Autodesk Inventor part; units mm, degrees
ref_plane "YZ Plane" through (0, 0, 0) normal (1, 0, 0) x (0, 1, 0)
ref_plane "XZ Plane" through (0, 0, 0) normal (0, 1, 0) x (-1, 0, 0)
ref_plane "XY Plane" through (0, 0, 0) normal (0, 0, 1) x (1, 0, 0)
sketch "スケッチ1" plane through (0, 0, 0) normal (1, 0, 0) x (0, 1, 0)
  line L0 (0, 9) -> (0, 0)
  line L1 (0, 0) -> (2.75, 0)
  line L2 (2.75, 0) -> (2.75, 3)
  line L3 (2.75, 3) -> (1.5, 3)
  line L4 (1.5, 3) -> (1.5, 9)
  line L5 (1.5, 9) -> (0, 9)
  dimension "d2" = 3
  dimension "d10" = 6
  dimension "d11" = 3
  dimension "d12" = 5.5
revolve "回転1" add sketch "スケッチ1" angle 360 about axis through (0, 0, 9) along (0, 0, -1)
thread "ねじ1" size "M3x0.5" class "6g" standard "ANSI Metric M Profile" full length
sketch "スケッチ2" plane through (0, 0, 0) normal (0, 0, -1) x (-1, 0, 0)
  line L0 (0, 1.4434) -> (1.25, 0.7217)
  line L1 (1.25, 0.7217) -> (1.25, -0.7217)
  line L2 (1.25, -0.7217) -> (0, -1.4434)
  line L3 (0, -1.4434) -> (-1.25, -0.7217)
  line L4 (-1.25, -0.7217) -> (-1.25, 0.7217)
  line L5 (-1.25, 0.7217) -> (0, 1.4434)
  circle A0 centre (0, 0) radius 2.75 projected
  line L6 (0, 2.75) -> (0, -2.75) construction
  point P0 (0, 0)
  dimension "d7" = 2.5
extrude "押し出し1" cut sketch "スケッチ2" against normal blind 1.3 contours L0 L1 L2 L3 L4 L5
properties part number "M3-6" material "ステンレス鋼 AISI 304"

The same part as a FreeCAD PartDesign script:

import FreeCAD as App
import Part
import Sketcher
from FreeCAD import Vector
Q = App.Units.Quantity

doc = App.newDocument("Part")
body = doc.addObject("PartDesign::Body", "Body")

# Sketch on YZ plane
sketch1 = doc.addObject("Sketcher::SketchObject", "Sketch")
body.addObject(sketch1)
sketch1.AttachmentSupport = (doc.YZ_Plane, [""])
sketch1.MapMode = "FlatFace"
sketch1.addGeometry(Part.LineSegment(Vector(1.5, 9, 0), Vector(0, 9, 0)), False)
sketch1.addGeometry(Part.LineSegment(Vector(0, 9, 0), Vector(0, 0, 0)), False)
sketch1.addGeometry(Part.LineSegment(Vector(0, 0, 0), Vector(2.75, 0, 0)), False)
sketch1.addGeometry(Part.LineSegment(Vector(2.75, 0, 0), Vector(2.75, 3, 0)), False)
sketch1.addGeometry(Part.LineSegment(Vector(2.75, 3, 0), Vector(1.5, 3, 0)), False)
sketch1.addGeometry(Part.LineSegment(Vector(1.5, 3, 0), Vector(1.5, 9, 0)), False)
sketch1.addConstraint(Sketcher.Constraint("Coincident", 0, 2, 1, 1))
sketch1.addConstraint(Sketcher.Constraint("Coincident", 1, 2, 2, 1))
sketch1.addConstraint(Sketcher.Constraint("Coincident", 2, 2, 3, 1))
sketch1.addConstraint(Sketcher.Constraint("Coincident", 3, 2, 4, 1))
sketch1.addConstraint(Sketcher.Constraint("Coincident", 4, 2, 5, 1))
sketch1.addConstraint(Sketcher.Constraint("Coincident", 5, 2, 0, 1))
sketch1.addConstraint(Sketcher.Constraint("Horizontal", 0))
sketch1.addConstraint(Sketcher.Constraint("Vertical", 1))
sketch1.addConstraint(Sketcher.Constraint("Horizontal", 2))
sketch1.addConstraint(Sketcher.Constraint("Vertical", 3))
sketch1.addConstraint(Sketcher.Constraint("Horizontal", 4))
sketch1.addConstraint(Sketcher.Constraint("Vertical", 5))
sketch1.addConstraint(Sketcher.Constraint("Coincident", 1, 2, -1, 1))
sketch1.addConstraint(Sketcher.Constraint("DistanceY", 3, 1, 3, 2, Q("3 mm")))
sketch1.addConstraint(Sketcher.Constraint("DistanceY", 5, 1, 5, 2, Q("6 mm")))
sketch1.addConstraint(Sketcher.Constraint("DistanceX", 0, 2, 0, 1, Q("1.5 mm")))
sketch1.addConstraint(Sketcher.Constraint("DistanceX", 2, 1, 2, 2, Q("2.75 mm")))
revolution = doc.addObject("PartDesign::Revolution", "Revolution")
body.addObject(revolution)
revolution.Profile = sketch1
revolution.ReferenceAxis = (sketch1, ["V_Axis"])
revolution.Angle = 360

# Sketch on XY plane
sketch2 = doc.addObject("Sketcher::SketchObject", "Sketch001")
body.addObject(sketch2)
sketch2.AttachmentSupport = (doc.XY_Plane, [""])
sketch2.MapMode = "FlatFace"
sketch2.addGeometry(Part.LineSegment(Vector(-1.25, 0.7217, 0), Vector(0, 1.4434, 0)), False)
sketch2.addGeometry(Part.LineSegment(Vector(0, 1.4434, 0), Vector(1.25, 0.7217, 0)), False)
sketch2.addGeometry(Part.LineSegment(Vector(1.25, 0.7217, 0), Vector(1.25, -0.7217, 0)), False)
sketch2.addGeometry(Part.LineSegment(Vector(1.25, -0.7217, 0), Vector(0, -1.4434, 0)), False)
sketch2.addGeometry(Part.LineSegment(Vector(0, -1.4434, 0), Vector(-1.25, -0.7217, 0)), False)
sketch2.addGeometry(Part.LineSegment(Vector(-1.25, -0.7217, 0), Vector(-1.25, 0.7217, 0)), False)
sketch2.addConstraint(Sketcher.Constraint("Coincident", 0, 2, 1, 1))
sketch2.addConstraint(Sketcher.Constraint("Coincident", 1, 2, 2, 1))
sketch2.addConstraint(Sketcher.Constraint("Coincident", 2, 2, 3, 1))
sketch2.addConstraint(Sketcher.Constraint("Coincident", 3, 2, 4, 1))
sketch2.addConstraint(Sketcher.Constraint("Coincident", 4, 2, 5, 1))
sketch2.addConstraint(Sketcher.Constraint("Coincident", 5, 2, 0, 1))
sketch2.addConstraint(Sketcher.Constraint("Vertical", 2))
sketch2.addConstraint(Sketcher.Constraint("Vertical", 5))
sketch2.addConstraint(Sketcher.Constraint("Symmetric", 0, 2, 3, 2, -1, 1))
sketch2.addConstraint(Sketcher.Constraint("Symmetric", 1, 2, 4, 2, -1, 1))
sketch2.addConstraint(Sketcher.Constraint("PointOnObject", 0, 2, -2))
sketch2.addConstraint(Sketcher.Constraint("Parallel", 0, 3))
sketch2.addConstraint(Sketcher.Constraint("Horizontal", 2, 2, 4, 2))
sketch2.addConstraint(Sketcher.Constraint("DistanceX", 4, 2, 2, 2, Q("2.5 mm")))
sketch2.addConstraint(Sketcher.Constraint("Angle", 0, Q("30.0004 deg")))
sketch2.addConstraint(Sketcher.Constraint("DistanceY", 2, 2, 2, 1, Q("1.4434 mm")))
pocket1 = doc.addObject("PartDesign::Pocket", "Pocket")
body.addObject(pocket1)
pocket1.Profile = sketch2
pocket1.Length = 1.3
pocket1.Reversed = True

doc.recompute()
